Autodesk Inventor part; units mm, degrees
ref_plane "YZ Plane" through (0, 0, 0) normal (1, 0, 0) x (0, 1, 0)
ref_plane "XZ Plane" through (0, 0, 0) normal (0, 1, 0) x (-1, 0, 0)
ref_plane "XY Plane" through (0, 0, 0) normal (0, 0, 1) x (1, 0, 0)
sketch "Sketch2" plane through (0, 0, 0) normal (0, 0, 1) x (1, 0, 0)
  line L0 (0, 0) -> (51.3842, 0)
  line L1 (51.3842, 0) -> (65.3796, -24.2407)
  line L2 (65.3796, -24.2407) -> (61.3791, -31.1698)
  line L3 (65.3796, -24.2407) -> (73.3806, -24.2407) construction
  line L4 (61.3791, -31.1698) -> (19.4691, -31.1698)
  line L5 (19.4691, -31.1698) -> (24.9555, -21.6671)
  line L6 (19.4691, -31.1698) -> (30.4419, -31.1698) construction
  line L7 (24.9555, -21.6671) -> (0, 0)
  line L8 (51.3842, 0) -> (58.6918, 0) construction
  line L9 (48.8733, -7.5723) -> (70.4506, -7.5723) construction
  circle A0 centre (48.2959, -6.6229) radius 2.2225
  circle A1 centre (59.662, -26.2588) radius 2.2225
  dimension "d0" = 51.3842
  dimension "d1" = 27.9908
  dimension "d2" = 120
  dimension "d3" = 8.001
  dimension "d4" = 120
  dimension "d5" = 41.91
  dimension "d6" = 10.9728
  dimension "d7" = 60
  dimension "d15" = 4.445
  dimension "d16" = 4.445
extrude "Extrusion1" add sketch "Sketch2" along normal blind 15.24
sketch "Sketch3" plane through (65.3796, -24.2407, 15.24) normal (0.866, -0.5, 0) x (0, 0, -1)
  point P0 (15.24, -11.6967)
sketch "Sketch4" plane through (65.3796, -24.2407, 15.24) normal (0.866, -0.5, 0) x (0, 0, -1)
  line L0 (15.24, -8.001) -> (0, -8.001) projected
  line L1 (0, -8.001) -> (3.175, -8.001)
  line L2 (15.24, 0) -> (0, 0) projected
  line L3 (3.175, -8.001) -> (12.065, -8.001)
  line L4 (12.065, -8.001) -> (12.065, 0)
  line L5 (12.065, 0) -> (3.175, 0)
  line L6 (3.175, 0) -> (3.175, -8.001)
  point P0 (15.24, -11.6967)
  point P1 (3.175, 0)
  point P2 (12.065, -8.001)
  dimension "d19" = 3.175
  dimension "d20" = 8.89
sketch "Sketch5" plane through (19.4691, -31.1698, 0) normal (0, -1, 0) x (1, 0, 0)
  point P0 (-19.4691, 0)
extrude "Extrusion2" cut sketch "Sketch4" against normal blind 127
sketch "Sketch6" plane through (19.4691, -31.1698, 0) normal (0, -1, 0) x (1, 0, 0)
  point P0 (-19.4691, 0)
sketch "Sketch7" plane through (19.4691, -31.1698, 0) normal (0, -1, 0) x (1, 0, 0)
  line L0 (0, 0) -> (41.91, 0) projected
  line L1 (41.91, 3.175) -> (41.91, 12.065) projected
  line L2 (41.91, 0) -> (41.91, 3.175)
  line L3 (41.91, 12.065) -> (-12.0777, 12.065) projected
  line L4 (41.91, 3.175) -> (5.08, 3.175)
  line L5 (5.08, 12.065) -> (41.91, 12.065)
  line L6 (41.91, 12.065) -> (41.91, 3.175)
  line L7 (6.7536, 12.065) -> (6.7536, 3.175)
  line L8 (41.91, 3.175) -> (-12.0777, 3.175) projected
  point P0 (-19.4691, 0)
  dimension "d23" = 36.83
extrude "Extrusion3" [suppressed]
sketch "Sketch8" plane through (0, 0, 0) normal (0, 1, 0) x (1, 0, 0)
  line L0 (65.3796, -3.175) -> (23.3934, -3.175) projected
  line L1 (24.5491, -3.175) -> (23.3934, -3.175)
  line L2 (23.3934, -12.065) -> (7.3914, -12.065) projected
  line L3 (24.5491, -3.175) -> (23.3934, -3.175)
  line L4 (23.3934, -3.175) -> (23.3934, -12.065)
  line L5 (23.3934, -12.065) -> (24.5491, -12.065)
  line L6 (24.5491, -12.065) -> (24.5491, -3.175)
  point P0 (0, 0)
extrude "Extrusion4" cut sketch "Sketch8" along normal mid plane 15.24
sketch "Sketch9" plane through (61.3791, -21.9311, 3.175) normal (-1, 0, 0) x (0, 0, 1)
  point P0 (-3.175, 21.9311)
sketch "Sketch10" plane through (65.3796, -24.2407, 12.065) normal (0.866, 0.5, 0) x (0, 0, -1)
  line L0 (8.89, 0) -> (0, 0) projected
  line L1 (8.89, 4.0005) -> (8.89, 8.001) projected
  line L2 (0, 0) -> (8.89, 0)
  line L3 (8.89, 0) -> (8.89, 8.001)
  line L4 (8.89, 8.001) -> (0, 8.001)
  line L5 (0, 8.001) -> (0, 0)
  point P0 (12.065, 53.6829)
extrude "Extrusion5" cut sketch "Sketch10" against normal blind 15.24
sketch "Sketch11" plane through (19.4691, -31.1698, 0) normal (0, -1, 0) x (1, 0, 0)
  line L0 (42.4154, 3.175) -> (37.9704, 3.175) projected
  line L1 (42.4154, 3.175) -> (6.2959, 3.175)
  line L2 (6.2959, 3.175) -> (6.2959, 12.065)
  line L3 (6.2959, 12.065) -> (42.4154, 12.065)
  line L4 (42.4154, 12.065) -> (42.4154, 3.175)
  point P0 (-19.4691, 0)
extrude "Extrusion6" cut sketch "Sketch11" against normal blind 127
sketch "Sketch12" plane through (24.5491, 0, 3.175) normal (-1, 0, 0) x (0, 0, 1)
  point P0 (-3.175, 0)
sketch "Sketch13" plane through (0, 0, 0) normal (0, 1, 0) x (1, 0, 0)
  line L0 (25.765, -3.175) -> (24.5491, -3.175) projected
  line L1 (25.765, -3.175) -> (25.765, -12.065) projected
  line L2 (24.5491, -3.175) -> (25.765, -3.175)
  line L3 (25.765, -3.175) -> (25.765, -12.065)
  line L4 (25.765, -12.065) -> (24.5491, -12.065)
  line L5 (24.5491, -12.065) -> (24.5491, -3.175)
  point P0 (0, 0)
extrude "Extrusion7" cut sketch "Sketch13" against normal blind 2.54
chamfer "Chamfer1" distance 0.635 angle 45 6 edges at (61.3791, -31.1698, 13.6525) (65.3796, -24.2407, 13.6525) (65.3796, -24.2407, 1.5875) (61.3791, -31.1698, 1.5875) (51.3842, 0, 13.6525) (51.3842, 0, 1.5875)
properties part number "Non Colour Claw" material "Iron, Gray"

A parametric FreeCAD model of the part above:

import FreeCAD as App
import Part
import Sketcher

V = App.Vector
Q = App.Units.Quantity


def edges_at(feature, points):
    """Names of the edges that pass closest to the given points."""
    edges = feature.Shape.Edges
    near = lambda p: min(range(len(edges)), key=lambda i: edges[i].distToShape(Part.Vertex(*p))[0])
    return sorted({f"Edge{near(p) + 1}" for p in points})


def add_polygon(sketch, points):
    """Adds a closed chain of lines whose ends are joined by coincident constraints."""
    first, n = sketch.GeometryCount, len(points)
    for a, b in zip(points, points[1:] + points[:1]):
        sketch.addGeometry(Part.LineSegment(App.Vector(*a, 0), App.Vector(*b, 0)), False)
    for i in range(n):
        sketch.addConstraint(Sketcher.Constraint("Coincident", first + i, 2, first + (i + 1) % n, 1))

doc = App.newDocument("Part")
body = doc.addObject("PartDesign::Body", "Body")

sketch1 = doc.addObject("Sketcher::SketchObject", "Sketch")
body.addObject(sketch1)
sketch1.AttachmentSupport = (doc.XY_Plane, [""])
sketch1.MapMode = "FlatFace"
add_polygon(sketch1, [(51.3842, 0), (0, 0), (24.9555, -21.6671), (19.4691, -31.1698), (61.3791, -31.1698), (65.3796, -24.2407)])
sketch1.addGeometry(Part.Circle(V(59.662, -26.2588, 0), V(0, 0, 1), 2.2225), False)
sketch1.addGeometry(Part.Circle(V(48.2959, -6.6229, 0), V(0, 0, 1), 2.2225), False)
sketch1.addConstraint(Sketcher.Constraint("Horizontal", 0))
sketch1.addConstraint(Sketcher.Constraint("Horizontal", 3))
sketch1.addConstraint(Sketcher.Constraint("Coincident", 0, 2, -1, 1))
sketch1.addConstraint(Sketcher.Constraint("Equal", 6, 7))
sketch1.addConstraint(Sketcher.Constraint("Parallel", 2, 4))
sketch1.addConstraint(Sketcher.Constraint("Diameter", 6, Q("0.175 in")))
sketch1.addConstraint(Sketcher.Constraint("Angle", 2, Q("-120 deg")))
sketch1.addConstraint(Sketcher.Constraint("Angle", 5, Q("120 deg")))
sketch1.addConstraint(Sketcher.Constraint("DistanceX", 3, 1, 3, 2, Q("1.65 in")))
sketch1.addConstraint(Sketcher.Constraint("DistanceX", 0, 2, 0, 1, Q("2.023 in")))
sketch1.addConstraint(Sketcher.Constraint("Distance", 2, Q("0.432 in")))
sketch1.addConstraint(Sketcher.Constraint("Distance", 4, Q("0.315 in")))
sketch1.addConstraint(Sketcher.Constraint("Distance", 5, Q("1.102 in")))
sketch1.addConstraint(Sketcher.Constraint("DistanceX", -1, 1, 6, 3, Q("2.3489 in")))
sketch1.addConstraint(Sketcher.Constraint("DistanceY", 6, 3, -1, 1, Q("1.0338 in")))
sketch1.addConstraint(Sketcher.Constraint("DistanceY", 1, 2, 7, 3, Q("0.5923 in")))
sketch1.addConstraint(Sketcher.Constraint("DistanceX", -1, 1, 7, 3, Q("48.296 mm")))
pad1 = doc.addObject("PartDesign::Pad", "Pad")
body.addObject(pad1)
pad1.Profile = sketch1
pad1.Length = Q("0.6 in")

sketch2 = doc.addObject("Sketcher::SketchObject", "Sketch001")
body.addObject(sketch2)
sketch2.Placement = App.Placement(V(65.3796, -24.2407, 15.24), App.Rotation(V(0, 0, -1), V(0.5, 0.866025404, 0), V(0.866025404, -0.5, 0), "ZXY"))
add_polygon(sketch2, [(3.175, -8.001), (12.065, -8.001), (12.065, 0), (3.175, 0)])
sketch2.addConstraint(Sketcher.Constraint("Horizontal", 0))
sketch2.addConstraint(Sketcher.Constraint("Vertical", 1))
sketch2.addConstraint(Sketcher.Constraint("Horizontal", 2))
sketch2.addConstraint(Sketcher.Constraint("Vertical", 3))
sketch2.addConstraint(Sketcher.Constraint("PointOnObject", 1, 2, -1))
sketch2.addConstraint(Sketcher.Constraint("DistanceX", 0, 1, 0, 2, Q("0.35 in")))
sketch2.addConstraint(Sketcher.Constraint("DistanceX", -1, 1, 2, 2, Q("0.125 in")))
sketch2.addConstraint(Sketcher.Constraint("DistanceY", 1, 1, 1, 2, Q("0.315 in")))
pocket1 = doc.addObject("PartDesign::Pocket", "Pocket")
body.addObject(pocket1)
pocket1.Profile = sketch2
pocket1.Length = Q("5 in")

sketch3 = doc.addObject("Sketcher::SketchObject", "Sketch002")
body.addObject(sketch3)
sketch3.AttachmentSupport = (doc.XZ_Plane, [""])
sketch3.MapMode = "FlatFace"
add_polygon(sketch3, [(24.5491, 12.065), (24.5491, 3.175), (23.3934, 3.175), (23.3934, 12.065)])
sketch3.addConstraint(Sketcher.Constraint("Vertical", 0))
sketch3.addConstraint(Sketcher.Constraint("Horizontal", 1))
sketch3.addConstraint(Sketcher.Constraint("Vertical", 2))
sketch3.addConstraint(Sketcher.Constraint("Horizontal", 3))
sketch3.addConstraint(Sketcher.Constraint("DistanceY", 0, 2, 0, 1, Q("0.35 in")))
sketch3.addConstraint(Sketcher.Constraint("DistanceX", 1, 2, 1, 1, Q("0.0455 in")))
sketch3.addConstraint(Sketcher.Constraint("DistanceY", -1, 1, 0, 2, Q("0.125 in")))
sketch3.addConstraint(Sketcher.Constraint("DistanceX", -1, 1, 1, 2, Q("0.921 in")))
pocket2 = doc.addObject("PartDesign::Pocket", "Pocket001")
body.addObject(pocket2)
pocket2.Profile = sketch3
pocket2.Length = Q("0.6 in")
pocket2.Midplane = True

sketch4 = doc.addObject("Sketcher::SketchObject", "Sketch003")
body.addObject(sketch4)
sketch4.Placement = App.Placement(V(65.3796, -24.2407, 12.065), App.Rotation(V(0, 0, -1), V(-0.5, 0.866025404, 0), V(0.866025404, 0.5, 0), "ZXY"))
add_polygon(sketch4, [(0, 0), (8.89, 0), (8.89, 8.001), (0, 8.001)])
sketch4.addConstraint(Sketcher.Constraint("Horizontal", 0))
sketch4.addConstraint(Sketcher.Constraint("Vertical", 1))
sketch4.addConstraint(Sketcher.Constraint("Horizontal", 2))
sketch4.addConstraint(Sketcher.Constraint("Vertical", 3))
sketch4.addConstraint(Sketcher.Constraint("Coincident", 3, 2, -1, 1))
sketch4.addConstraint(Sketcher.Constraint("DistanceX", 0, 1, 0, 2, Q("0.35 in")))
sketch4.addConstraint(Sketcher.Constraint("DistanceY", 1, 1, 1, 2, Q("0.315 in")))
pocket3 = doc.addObject("PartDesign::Pocket", "Pocket002")
body.addObject(pocket3)
pocket3.Profile = sketch4
pocket3.Length = Q("0.6 in")

sketch5 = doc.addObject("Sketcher::SketchObject", "Sketch004")
body.addObject(sketch5)
sketch5.AttachmentSupport = (doc.XZ_Plane, [""])
sketch5.MapMode = "FlatFace"
sketch5.AttachmentOffset = App.Placement(V(0, 0, 31.1698), App.Rotation())
add_polygon(sketch5, [(25.765, 3.175), (61.8845, 3.175), (61.8845, 12.065), (25.765, 12.065)])
sketch5.addConstraint(Sketcher.Constraint("Horizontal", 0))
sketch5.addConstraint(Sketcher.Constraint("Vertical", 1))
sketch5.addConstraint(Sketcher.Constraint("Horizontal", 2))
sketch5.addConstraint(Sketcher.Constraint("Vertical", 3))
sketch5.addConstraint(Sketcher.Constraint("DistanceY", 1, 1, 1, 2, Q("0.35 in")))
sketch5.addConstraint(Sketcher.Constraint("DistanceY", -1, 1, 0, 2, Q("0.125 in")))
sketch5.addConstraint(Sketcher.Constraint("DistanceX", 0, 1, 0, 2, Q("36.1195 mm")))
sketch5.addConstraint(Sketcher.Constraint("DistanceX", -1, 1, 0, 2, Q("2.4364 in")))
pocket4 = doc.addObject("PartDesign::Pocket", "Pocket003")
body.addObject(pocket4)
pocket4.Profile = sketch5
pocket4.Length = Q("5 in")

sketch6 = doc.addObject("Sketcher::SketchObject", "Sketch005")
body.addObject(sketch6)
sketch6.AttachmentSupport = (doc.XZ_Plane, [""])
sketch6.MapMode = "FlatFace"
add_polygon(sketch6, [(25.765, 12.065), (25.765, 3.175), (24.5491, 3.175), (24.5491, 12.065)])
sketch6.addConstraint(Sketcher.Constraint("Vertical", 0))
sketch6.addConstraint(Sketcher.Constraint("Horizontal", 1))
sketch6.addConstraint(Sketcher.Constraint("Vertical", 2))
sketch6.addConstraint(Sketcher.Constraint("Horizontal", 3))
sketch6.addConstraint(Sketcher.Constraint("DistanceY", 0, 2, 0, 1, Q("0.35 in")))
sketch6.addConstraint(Sketcher.Constraint("DistanceY", -1, 1, 0, 2, Q("0.125 in")))
sketch6.addConstraint(Sketcher.Constraint("DistanceX", 1, 2, 1, 1, Q("1.216 mm")))
sketch6.addConstraint(Sketcher.Constraint("DistanceX", -1, 1, 1, 2, Q("0.9665 in")))
pocket5 = doc.addObject("PartDesign::Pocket", "Pocket004")
body.addObject(pocket5)
pocket5.Profile = sketch6
pocket5.Length = Q("0.1 in")
pocket5.Reversed = True
doc.recompute()

chamfer = doc.addObject("PartDesign::Chamfer", "Chamfer")
body.addObject(chamfer)
chamfer.Base = (pocket5, edges_at(pocket5, [
    (61.379, -31.17, 13.652),
    (65.38, -24.241, 13.652),
    (65.38, -24.241, 1.587),
    (61.379, -31.17, 1.587),
    (51.384, 0, 13.652),
    (51.384, 0, 1.587),
]))
chamfer.Size = Q("0.025 in")

doc.recompute()
